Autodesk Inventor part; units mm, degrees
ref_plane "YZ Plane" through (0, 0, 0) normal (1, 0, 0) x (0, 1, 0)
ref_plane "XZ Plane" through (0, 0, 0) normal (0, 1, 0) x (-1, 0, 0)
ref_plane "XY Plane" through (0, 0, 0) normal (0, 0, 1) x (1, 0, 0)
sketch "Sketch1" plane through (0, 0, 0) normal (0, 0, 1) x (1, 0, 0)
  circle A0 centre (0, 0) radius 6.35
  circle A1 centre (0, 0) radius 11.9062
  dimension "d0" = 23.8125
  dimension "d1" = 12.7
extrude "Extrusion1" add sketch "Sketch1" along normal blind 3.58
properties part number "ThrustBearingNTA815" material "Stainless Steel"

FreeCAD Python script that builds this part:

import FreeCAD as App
import Part
import Sketcher
Q = App.Units.Quantity

doc = App.newDocument("Part")
body = doc.addObject("PartDesign::Body", "Body")

sketch1 = doc.addObject("Sketcher::SketchObject", "Sketch")
body.addObject(sketch1)
sketch1.AttachmentSupport = (doc.XY_Plane, [""])
sketch1.MapMode = "FlatFace"
sketch1.addGeometry([
    Part.Circle(App.Vector(0, 0, 0), App.Vector(0, 0, 1), 12),
    Part.Circle(App.Vector(0, 0, 0), App.Vector(0, 0, 1), 6),
], False)
sketch1.addConstraint([
    Sketcher.Constraint("Coincident", 0, 3, -1, 1),
    Sketcher.Constraint("Coincident", 1, 3, -1, 1),
    Sketcher.Constraint("Diameter", 1, Q("0.5 in")),
    Sketcher.Constraint("Diameter", 0, Q("0.9375 in")),
])
pad1 = doc.addObject("PartDesign::Pad", "Pad")
body.addObject(pad1)
pad1.Profile = sketch1
pad1.Length = 3.58

doc.recompute()
